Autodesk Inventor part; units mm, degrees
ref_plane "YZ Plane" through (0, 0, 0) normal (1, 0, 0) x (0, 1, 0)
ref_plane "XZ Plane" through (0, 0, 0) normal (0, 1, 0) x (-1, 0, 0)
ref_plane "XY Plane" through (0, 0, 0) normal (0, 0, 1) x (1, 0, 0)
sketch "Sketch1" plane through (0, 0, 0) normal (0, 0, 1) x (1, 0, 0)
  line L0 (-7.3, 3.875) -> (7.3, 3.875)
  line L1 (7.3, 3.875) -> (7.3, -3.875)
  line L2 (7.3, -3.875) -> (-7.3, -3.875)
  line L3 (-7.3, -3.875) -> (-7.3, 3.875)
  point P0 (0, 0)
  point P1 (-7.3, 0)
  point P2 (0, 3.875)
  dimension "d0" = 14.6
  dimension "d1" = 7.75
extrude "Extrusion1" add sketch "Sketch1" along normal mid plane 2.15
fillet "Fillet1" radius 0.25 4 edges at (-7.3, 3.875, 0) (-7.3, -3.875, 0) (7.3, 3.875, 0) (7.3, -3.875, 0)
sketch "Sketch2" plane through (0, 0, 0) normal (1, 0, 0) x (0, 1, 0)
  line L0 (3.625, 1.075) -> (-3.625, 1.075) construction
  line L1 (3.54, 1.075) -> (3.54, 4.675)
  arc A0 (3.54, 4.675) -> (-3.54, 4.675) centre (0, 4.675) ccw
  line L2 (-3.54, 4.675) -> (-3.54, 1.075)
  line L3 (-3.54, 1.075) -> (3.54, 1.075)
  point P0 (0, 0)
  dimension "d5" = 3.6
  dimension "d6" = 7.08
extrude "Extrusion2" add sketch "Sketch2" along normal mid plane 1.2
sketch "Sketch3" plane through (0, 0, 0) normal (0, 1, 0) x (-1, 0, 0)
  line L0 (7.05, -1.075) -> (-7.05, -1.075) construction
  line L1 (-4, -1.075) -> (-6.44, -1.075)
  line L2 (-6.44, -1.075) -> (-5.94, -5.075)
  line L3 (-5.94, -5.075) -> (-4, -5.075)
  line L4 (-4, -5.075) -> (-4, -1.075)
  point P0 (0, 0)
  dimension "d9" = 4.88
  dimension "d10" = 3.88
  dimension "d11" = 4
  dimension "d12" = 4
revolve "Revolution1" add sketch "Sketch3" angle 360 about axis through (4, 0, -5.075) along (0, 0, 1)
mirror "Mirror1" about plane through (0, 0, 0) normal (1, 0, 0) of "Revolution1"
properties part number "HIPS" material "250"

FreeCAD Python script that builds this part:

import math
import FreeCAD as App
import Part
import Sketcher


def edges_at(feature, points):
    """Names of the edges that pass closest to the given points."""
    edges = feature.Shape.Edges
    near = lambda p: min(range(len(edges)), key=lambda i: edges[i].distToShape(Part.Vertex(*p))[0])
    return sorted({f"Edge{near(p) + 1}" for p in points})


def add_polygon(sketch, points):
    """Adds a closed chain of lines whose ends are joined by coincident constraints."""
    first, n = sketch.GeometryCount, len(points)
    for a, b in zip(points, points[1:] + points[:1]):
        sketch.addGeometry(Part.LineSegment(App.Vector(*a, 0), App.Vector(*b, 0)), False)
    for i in range(n):
        sketch.addConstraint(Sketcher.Constraint("Coincident", first + i, 2, first + (i + 1) % n, 1))

doc = App.newDocument("Part")
body = doc.addObject("PartDesign::Body", "Body")

# Sketch on XY plane
sketch1 = body.newObject("Sketcher::SketchObject", "Sketch")
sketch1.AttachmentSupport = (doc.getObject("XY_Plane"), [""])
sketch1.MapMode = "FlatFace"
add_polygon(sketch1, [(7, 4), (-7, 4), (-7, -4), (7, -4)])  # lines 0-3
sketch1.addConstraint([
    Sketcher.Constraint("Horizontal", 0),
    Sketcher.Constraint("Vertical", 1),
    Sketcher.Constraint("Horizontal", 2),
    Sketcher.Constraint("Vertical", 3),
    Sketcher.Constraint("Symmetric", 0, 2, 2, 2, -1, 1),
    Sketcher.Constraint("DistanceX", 0, 2, 0, 1, 14.6),
    Sketcher.Constraint("DistanceY", 1, 2, 1, 1, 7.75),
])
pad1 = body.newObject("PartDesign::Pad", "Pad")
pad1.Profile = sketch1
pad1.Length = 2.15
pad1.Midplane = True
doc.recompute()

fillet = body.newObject("PartDesign::Fillet", "Fillet")
fillet.Base = (pad1, edges_at(pad1, [
    (-7.3, 3.875, 0),
    (-7.3, -3.875, 0),
    (7.3, 3.875, 0),
    (7.3, -3.875, 0),
]))
fillet.Radius = 0.25

# Sketch on YZ plane
sketch2 = body.newObject("Sketcher::SketchObject", "Sketch001")
sketch2.AttachmentSupport = (doc.getObject("YZ_Plane"), [""])
sketch2.MapMode = "FlatFace"
sketch2.addGeometry([
    Part.LineSegment(App.Vector(-3.5, 1.1, 0), App.Vector(3.5, 1.1, 0)),
    Part.LineSegment(App.Vector(3.5, 1.1, 0), App.Vector(3.5, 4.7, 0)),
    Part.ArcOfCircle(Part.Circle(App.Vector(0, 4.7, 0), App.Vector(0, 0, 1), 3.5), math.radians(0), math.radians(180)),
    Part.LineSegment(App.Vector(-3.5, 4.7, 0), App.Vector(-3.5, 1.1, 0)),
], False)
sketch2.addConstraint([
    Sketcher.Constraint("Coincident", 0, 2, 1, 1),
    Sketcher.Constraint("Tangent", 1, 2, 2, 1),
    Sketcher.Constraint("Tangent", 2, 2, 3, 1),
    Sketcher.Constraint("Coincident", 3, 2, 0, 1),
    Sketcher.Constraint("Horizontal", 0),
    Sketcher.Constraint("Vertical", 1),
    Sketcher.Constraint("Vertical", 3),
    Sketcher.Constraint("PointOnObject", 2, 3, -2),
    Sketcher.Constraint("Radius", 2, 3.54),
    Sketcher.Constraint("DistanceY", 1, 1, 1, 2, 3.6),
    Sketcher.Constraint("DistanceY", -1, 1, 2, 3, 4.675),
])
pad2 = body.newObject("PartDesign::Pad", "Pad001")
pad2.Profile = sketch2
pad2.Length = 1.2
pad2.Midplane = True

# Sketch on XZ plane
sketch3 = body.newObject("Sketcher::SketchObject", "Sketch002")
sketch3.AttachmentSupport = (doc.getObject("XZ_Plane"), [""])
sketch3.MapMode = "FlatFace"
add_polygon(sketch3, [(4, -5.1), (4, -1.1), (6.4, -1.1), (5.9, -5.1)])  # lines 0-3
sketch3.addGeometry(Part.LineSegment(App.Vector(4, -5.1, 0), App.Vector(4, -1.1, 0)), True)  # axis
sketch3.addConstraint([
    Sketcher.Constraint("Vertical", 0),
    Sketcher.Constraint("Horizontal", 1),
    Sketcher.Constraint("Horizontal", 3),
    Sketcher.Constraint("Vertical", 4),
    Sketcher.Constraint("Coincident", 4, 1, 3, 2),
    Sketcher.Constraint("Horizontal", 1, 2, 4, 2),
    Sketcher.Constraint("DistanceY", 0, 1, 0, 2, 4.0),
    Sketcher.Constraint("DistanceX", -1, 1, 0, 2, 4.0),
    Sketcher.Constraint("DistanceX", 1, 1, 1, 2, 2.44),
    Sketcher.Constraint("DistanceX", 3, 2, 3, 1, 1.94),
    Sketcher.Constraint("DistanceY", 0, 2, -1, 1, 1.075),
])
revolution = body.newObject("PartDesign::Revolution", "Revolution")
revolution.Profile = sketch3
revolution.ReferenceAxis = (sketch3, ["Axis0"])
revolution.Angle = 360
doc.recompute()

mirrored = body.newObject("PartDesign::Mirrored", "Mirrored")
mirrored.Originals = [revolution]
mirrored.MirrorPlane = (doc.getObject("YZ_Plane"), [""])
body.Tip = mirrored

doc.recompute()
